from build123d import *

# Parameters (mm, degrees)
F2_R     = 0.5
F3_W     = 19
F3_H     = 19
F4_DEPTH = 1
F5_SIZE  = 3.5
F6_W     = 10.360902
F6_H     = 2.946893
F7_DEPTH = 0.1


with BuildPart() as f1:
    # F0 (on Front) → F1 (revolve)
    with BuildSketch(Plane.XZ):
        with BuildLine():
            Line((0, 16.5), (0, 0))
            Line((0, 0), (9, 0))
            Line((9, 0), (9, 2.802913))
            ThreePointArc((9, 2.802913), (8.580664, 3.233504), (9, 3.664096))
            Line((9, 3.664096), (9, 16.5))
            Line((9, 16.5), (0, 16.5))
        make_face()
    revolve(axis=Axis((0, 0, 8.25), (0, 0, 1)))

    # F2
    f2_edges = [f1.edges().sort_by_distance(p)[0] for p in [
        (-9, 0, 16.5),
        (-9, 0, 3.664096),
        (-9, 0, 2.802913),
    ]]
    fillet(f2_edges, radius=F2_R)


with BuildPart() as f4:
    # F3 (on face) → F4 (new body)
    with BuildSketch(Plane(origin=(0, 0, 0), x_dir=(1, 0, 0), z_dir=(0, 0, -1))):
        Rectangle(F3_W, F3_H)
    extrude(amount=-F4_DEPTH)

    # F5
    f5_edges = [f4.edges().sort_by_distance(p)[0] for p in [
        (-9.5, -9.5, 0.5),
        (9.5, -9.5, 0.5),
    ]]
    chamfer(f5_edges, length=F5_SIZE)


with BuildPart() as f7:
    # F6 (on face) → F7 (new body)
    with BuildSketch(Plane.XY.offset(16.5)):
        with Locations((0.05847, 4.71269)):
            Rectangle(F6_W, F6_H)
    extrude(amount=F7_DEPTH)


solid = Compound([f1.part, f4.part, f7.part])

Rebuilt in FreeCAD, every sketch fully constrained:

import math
import FreeCAD as App
import Part
import Sketcher
Q = App.Units.Quantity


def edges_at(feature, points):
    """Names of the edges that pass closest to the given points."""
    edges = feature.Shape.Edges
    near = lambda p: min(range(len(edges)), key=lambda i: edges[i].distToShape(Part.Vertex(*p))[0])
    return sorted({f"Edge{near(p) + 1}" for p in points})


def add_polygon(sketch, points):
    """Adds a closed chain of lines whose ends are joined by coincident constraints."""
    first, n = sketch.GeometryCount, len(points)
    for a, b in zip(points, points[1:] + points[:1]):
        sketch.addGeometry(Part.LineSegment(App.Vector(*a, 0), App.Vector(*b, 0)), False)
    for i in range(n):
        sketch.addConstraint(Sketcher.Constraint("Coincident", first + i, 2, first + (i + 1) % n, 1))

doc = App.newDocument("Part")
body = doc.addObject("PartDesign::Body", "Body")

# Sketch on XZ plane
sketch1 = body.newObject("Sketcher::SketchObject", "Sketch")
sketch1.AttachmentSupport = (doc.getObject("XZ_Plane"), [""])
sketch1.MapMode = "FlatFace"
sketch1.addGeometry([
    Part.LineSegment(App.Vector(0, 16.5, 0), App.Vector(0, 0, 0)),  # 0
    Part.LineSegment(App.Vector(0, 0, 0), App.Vector(9, 0, 0)),  # 1
    Part.LineSegment(App.Vector(9, 0, 0), App.Vector(9, 2.802913, 0)),  # 2
    Part.ArcOfCircle(Part.Circle(App.Vector(9.011407, 3.233505, 0), App.Vector(0, 0, 1), 0.430743), math.radians(91.517435), math.radians(268.482565)),  # 3
    Part.LineSegment(App.Vector(9, 3.664096, 0), App.Vector(9, 16.5, 0)),  # 4
    Part.LineSegment(App.Vector(9, 16.5, 0), App.Vector(0, 16.5, 0)),  # 5
], False)
sketch1.addConstraint([
    Sketcher.Constraint("Coincident", 0, 2, 1, 1),
    Sketcher.Constraint("Coincident", 1, 2, 2, 1),
    Sketcher.Constraint("Coincident", 2, 2, 3, 2),
    Sketcher.Constraint("Coincident", 3, 1, 4, 1),
    Sketcher.Constraint("Coincident", 4, 2, 5, 1),
    Sketcher.Constraint("Coincident", 5, 2, 0, 1),
    Sketcher.Constraint("Vertical", 0),
    Sketcher.Constraint("Horizontal", 1),
    Sketcher.Constraint("Vertical", 2),
    Sketcher.Constraint("Vertical", 4),
    Sketcher.Constraint("Horizontal", 5),
    Sketcher.Constraint("Coincident", 0, 2, -1, 1),
    Sketcher.Constraint("Vertical", 2, 2, 3, 1),
    Sketcher.Constraint("DistanceX", 1, 1, 1, 2, Q("9 mm")),
    Sketcher.Constraint("DistanceY", 0, 2, 0, 1, Q("16.5 mm")),
    Sketcher.Constraint("Radius", 3, Q("0.430743 mm")),
    Sketcher.Constraint("DistanceY", 2, 1, 2, 2, Q("2.802913 mm")),
    Sketcher.Constraint("DistanceY", 4, 1, 4, 2, Q("12.835904 mm")),
])
revolution = body.newObject("PartDesign::Revolution", "Revolution")
revolution.Profile = sketch1
revolution.ReferenceAxis = (sketch1, ["V_Axis"])
revolution.Angle = 360
doc.recompute()

fillet = body.newObject("PartDesign::Fillet", "Fillet")
fillet.Base = (revolution, edges_at(revolution, [(-9, 0, 16.5), (-9, 0, 3.664), (-9, 0, 2.803)]))
fillet.Radius = 0.5
body2 = doc.addObject("PartDesign::Body", "Body001")

# Sketch on XY plane
sketch2 = body2.newObject("Sketcher::SketchObject", "Sketch001")
sketch2.AttachmentSupport = (doc.getObject("XY_Plane001"), [""])
sketch2.MapMode = "FlatFace"
add_polygon(sketch2, [(-9.5, -9.5), (-9.5, 9.5), (9.5, 9.5), (9.5, -9.5)])  # lines 0-3
sketch2.addConstraint([
    Sketcher.Constraint("Vertical", 0),
    Sketcher.Constraint("Horizontal", 1),
    Sketcher.Constraint("Vertical", 2),
    Sketcher.Constraint("Horizontal", 3),
    Sketcher.Constraint("Symmetric", 0, 2, 2, 2, -1, 1),
    Sketcher.Constraint("Equal", 3, 0),
    Sketcher.Constraint("DistanceX", 1, 1, 1, 2, Q("19 mm")),
])
pad1 = body2.newObject("PartDesign::Pad", "Pad")
pad1.Profile = sketch2
pad1.Length = 1
doc.recompute()

chamfer = body2.newObject("PartDesign::Chamfer", "Chamfer")
chamfer.Base = (pad1, edges_at(pad1, [(-9.5, -9.5, 0.5), (9.5, -9.5, 0.5)]))
chamfer.Size = 3.5
body3 = doc.addObject("PartDesign::Body", "Body002")

# Sketch on XY plane
sketch3 = body3.newObject("Sketcher::SketchObject", "Sketch002")
sketch3.AttachmentSupport = (doc.getObject("XY_Plane002"), [""])
sketch3.MapMode = "FlatFace"
sketch3.AttachmentOffset = App.Placement(App.Vector(0, 0, 16.5), App.Rotation())
add_polygon(sketch3, [(-5.121981, 6.186136), (-5.121981, 3.239244), (5.238921, 3.239244), (5.238921, 6.186136)])  # lines 0-3
sketch3.addConstraint([
    Sketcher.Constraint("Vertical", 0),
    Sketcher.Constraint("Horizontal", 1),
    Sketcher.Constraint("Vertical", 2),
    Sketcher.Constraint("Horizontal", 3),
    Sketcher.Constraint("DistanceX", 1, 1, 1, 2, Q("10.360902 mm")),
    Sketcher.Constraint("DistanceY", 0, 2, 0, 1, Q("2.946893 mm")),
    Sketcher.Constraint("DistanceX", 0, 2, -1, 1, Q("5.121981 mm")),
    Sketcher.Constraint("DistanceY", -1, 1, 0, 2, Q("3.239244 mm")),
])
pad2 = body3.newObject("PartDesign::Pad", "Pad001")
pad2.Profile = sketch3
pad2.Length = 0.1

doc.recompute()
